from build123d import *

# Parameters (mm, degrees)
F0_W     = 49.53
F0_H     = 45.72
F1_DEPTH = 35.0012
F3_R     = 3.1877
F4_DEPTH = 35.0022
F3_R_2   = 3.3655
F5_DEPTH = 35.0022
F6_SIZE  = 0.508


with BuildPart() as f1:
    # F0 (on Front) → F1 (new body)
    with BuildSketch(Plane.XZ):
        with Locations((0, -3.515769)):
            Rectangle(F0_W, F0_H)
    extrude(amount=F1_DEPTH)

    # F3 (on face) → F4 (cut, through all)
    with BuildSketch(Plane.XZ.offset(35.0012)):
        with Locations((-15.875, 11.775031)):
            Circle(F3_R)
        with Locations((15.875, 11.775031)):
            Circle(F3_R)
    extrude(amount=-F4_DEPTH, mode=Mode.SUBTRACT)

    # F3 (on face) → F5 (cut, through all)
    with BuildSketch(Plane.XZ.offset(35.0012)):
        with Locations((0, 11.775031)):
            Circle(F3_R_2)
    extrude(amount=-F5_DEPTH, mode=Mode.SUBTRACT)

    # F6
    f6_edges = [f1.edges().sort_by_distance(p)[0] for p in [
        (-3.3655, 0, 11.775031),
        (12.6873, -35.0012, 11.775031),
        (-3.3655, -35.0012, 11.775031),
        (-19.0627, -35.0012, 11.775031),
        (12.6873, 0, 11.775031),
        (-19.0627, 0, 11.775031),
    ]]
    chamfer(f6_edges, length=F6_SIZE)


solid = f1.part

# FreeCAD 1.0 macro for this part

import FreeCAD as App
import Part
import Sketcher
from FreeCAD import Vector
Q = App.Units.Quantity


def edges_at(feature, points):
    """Names of the edges that pass closest to the given points."""
    edges = feature.Shape.Edges
    near = lambda p: min(range(len(edges)), key=lambda i: edges[i].distToShape(Part.Vertex(*p))[0])
    return sorted({f"Edge{near(p) + 1}" for p in points})

doc = App.newDocument("Part")
body = doc.addObject("PartDesign::Body", "Body")

sketch1 = doc.addObject("Sketcher::SketchObject", "Sketch")
body.addObject(sketch1)
sketch1.AttachmentSupport = (doc.XZ_Plane, [""])
sketch1.MapMode = "FlatFace"
sketch1.addGeometry([
    Part.LineSegment(Vector(-25, 19, 0), Vector(-25, -26, 0)),
    Part.LineSegment(Vector(-25, -26, 0), Vector(25, -26, 0)),
    Part.LineSegment(Vector(25, -26, 0), Vector(25, 19, 0)),
    Part.LineSegment(Vector(25, 19, 0), Vector(-25, 19, 0)),
], False)
sketch1.addConstraint([
    Sketcher.Constraint("Coincident", 0, 2, 1, 1),
    Sketcher.Constraint("Coincident", 1, 2, 2, 1),
    Sketcher.Constraint("Coincident", 2, 2, 3, 1),
    Sketcher.Constraint("Coincident", 3, 2, 0, 1),
    Sketcher.Constraint("Vertical", 0),
    Sketcher.Constraint("Horizontal", 1),
    Sketcher.Constraint("Vertical", 2),
    Sketcher.Constraint("Horizontal", 3),
    Sketcher.Constraint("DistanceY", 0, 2, 0, 1, Q("1.8 in")),
    Sketcher.Constraint("DistanceX", 1, 1, 1, 2, Q("1.95 in")),
    Sketcher.Constraint("DistanceX", 0, 2, -1, 1, Q("0.975 in")),
    Sketcher.Constraint("DistanceY", 0, 2, -1, 1, 26.375769),
])
pad1 = doc.addObject("PartDesign::Pad", "Pad")
body.addObject(pad1)
pad1.Profile = sketch1
pad1.Length = Q("1.378 in")

sketch2 = doc.addObject("Sketcher::SketchObject", "Sketch001")
body.addObject(sketch2)
sketch2.AttachmentSupport = (doc.XZ_Plane, [""])
sketch2.MapMode = "FlatFace"
sketch2.AttachmentOffset = App.Placement(Vector(0, 0, 1.378 * 25.4), App.Rotation())
sketch2.addGeometry([
    Part.Circle(Vector(-15.9, 11.8, 0), Vector(0, 0, 1), 3.2),
    Part.Circle(Vector(15.9, 11.8, 0), Vector(0, 0, 1), 3.2),
], False)
sketch2.addConstraint([
    Sketcher.Constraint("Equal", 0, 1),
    Sketcher.Constraint("Symmetric", 0, 3, 1, 3, -2),
    Sketcher.Constraint("Diameter", 0, Q("0.251 in")),
    Sketcher.Constraint("DistanceX", 0, 3, 1, 3, Q("1.25 in")),
    Sketcher.Constraint("DistanceY", -1, 1, 0, 3, 11.775031),
])
pocket1 = doc.addObject("PartDesign::Pocket", "Pocket")
body.addObject(pocket1)
pocket1.Profile = sketch2
pocket1.Type = "ThroughAll"

sketch3 = doc.addObject("Sketcher::SketchObject", "Sketch002")
body.addObject(sketch3)
sketch3.AttachmentSupport = (doc.XZ_Plane, [""])
sketch3.MapMode = "FlatFace"
sketch3.AttachmentOffset = App.Placement(Vector(0, 0, 1.378 * 25.4), App.Rotation())
sketch3.addGeometry(Part.Circle(Vector(0, 11.8, 0), Vector(0, 0, 1), 3.4), False)
sketch3.addConstraint([
    Sketcher.Constraint("PointOnObject", 0, 3, -2),
    Sketcher.Constraint("Diameter", 0, Q("0.265 in")),
    Sketcher.Constraint("DistanceY", -1, 1, 0, 3, 11.775031),
])
pocket2 = doc.addObject("PartDesign::Pocket", "Pocket001")
body.addObject(pocket2)
pocket2.Profile = sketch3
pocket2.Type = "ThroughAll"
doc.recompute()

chamfer = doc.addObject("PartDesign::Chamfer", "Chamfer")
body.addObject(chamfer)
chamfer.Base = (pocket2, edges_at(pocket2, [
    (-3.365, 0, 11.775),
    (12.687, -35.001, 11.775),
    (-3.365, -35.001, 11.775),
    (-19.063, -35.001, 11.775),
    (12.687, 0, 11.775),
    (-19.063, 0, 11.775),
]))
chamfer.Size = Q("0.02 in")

doc.recompute()
